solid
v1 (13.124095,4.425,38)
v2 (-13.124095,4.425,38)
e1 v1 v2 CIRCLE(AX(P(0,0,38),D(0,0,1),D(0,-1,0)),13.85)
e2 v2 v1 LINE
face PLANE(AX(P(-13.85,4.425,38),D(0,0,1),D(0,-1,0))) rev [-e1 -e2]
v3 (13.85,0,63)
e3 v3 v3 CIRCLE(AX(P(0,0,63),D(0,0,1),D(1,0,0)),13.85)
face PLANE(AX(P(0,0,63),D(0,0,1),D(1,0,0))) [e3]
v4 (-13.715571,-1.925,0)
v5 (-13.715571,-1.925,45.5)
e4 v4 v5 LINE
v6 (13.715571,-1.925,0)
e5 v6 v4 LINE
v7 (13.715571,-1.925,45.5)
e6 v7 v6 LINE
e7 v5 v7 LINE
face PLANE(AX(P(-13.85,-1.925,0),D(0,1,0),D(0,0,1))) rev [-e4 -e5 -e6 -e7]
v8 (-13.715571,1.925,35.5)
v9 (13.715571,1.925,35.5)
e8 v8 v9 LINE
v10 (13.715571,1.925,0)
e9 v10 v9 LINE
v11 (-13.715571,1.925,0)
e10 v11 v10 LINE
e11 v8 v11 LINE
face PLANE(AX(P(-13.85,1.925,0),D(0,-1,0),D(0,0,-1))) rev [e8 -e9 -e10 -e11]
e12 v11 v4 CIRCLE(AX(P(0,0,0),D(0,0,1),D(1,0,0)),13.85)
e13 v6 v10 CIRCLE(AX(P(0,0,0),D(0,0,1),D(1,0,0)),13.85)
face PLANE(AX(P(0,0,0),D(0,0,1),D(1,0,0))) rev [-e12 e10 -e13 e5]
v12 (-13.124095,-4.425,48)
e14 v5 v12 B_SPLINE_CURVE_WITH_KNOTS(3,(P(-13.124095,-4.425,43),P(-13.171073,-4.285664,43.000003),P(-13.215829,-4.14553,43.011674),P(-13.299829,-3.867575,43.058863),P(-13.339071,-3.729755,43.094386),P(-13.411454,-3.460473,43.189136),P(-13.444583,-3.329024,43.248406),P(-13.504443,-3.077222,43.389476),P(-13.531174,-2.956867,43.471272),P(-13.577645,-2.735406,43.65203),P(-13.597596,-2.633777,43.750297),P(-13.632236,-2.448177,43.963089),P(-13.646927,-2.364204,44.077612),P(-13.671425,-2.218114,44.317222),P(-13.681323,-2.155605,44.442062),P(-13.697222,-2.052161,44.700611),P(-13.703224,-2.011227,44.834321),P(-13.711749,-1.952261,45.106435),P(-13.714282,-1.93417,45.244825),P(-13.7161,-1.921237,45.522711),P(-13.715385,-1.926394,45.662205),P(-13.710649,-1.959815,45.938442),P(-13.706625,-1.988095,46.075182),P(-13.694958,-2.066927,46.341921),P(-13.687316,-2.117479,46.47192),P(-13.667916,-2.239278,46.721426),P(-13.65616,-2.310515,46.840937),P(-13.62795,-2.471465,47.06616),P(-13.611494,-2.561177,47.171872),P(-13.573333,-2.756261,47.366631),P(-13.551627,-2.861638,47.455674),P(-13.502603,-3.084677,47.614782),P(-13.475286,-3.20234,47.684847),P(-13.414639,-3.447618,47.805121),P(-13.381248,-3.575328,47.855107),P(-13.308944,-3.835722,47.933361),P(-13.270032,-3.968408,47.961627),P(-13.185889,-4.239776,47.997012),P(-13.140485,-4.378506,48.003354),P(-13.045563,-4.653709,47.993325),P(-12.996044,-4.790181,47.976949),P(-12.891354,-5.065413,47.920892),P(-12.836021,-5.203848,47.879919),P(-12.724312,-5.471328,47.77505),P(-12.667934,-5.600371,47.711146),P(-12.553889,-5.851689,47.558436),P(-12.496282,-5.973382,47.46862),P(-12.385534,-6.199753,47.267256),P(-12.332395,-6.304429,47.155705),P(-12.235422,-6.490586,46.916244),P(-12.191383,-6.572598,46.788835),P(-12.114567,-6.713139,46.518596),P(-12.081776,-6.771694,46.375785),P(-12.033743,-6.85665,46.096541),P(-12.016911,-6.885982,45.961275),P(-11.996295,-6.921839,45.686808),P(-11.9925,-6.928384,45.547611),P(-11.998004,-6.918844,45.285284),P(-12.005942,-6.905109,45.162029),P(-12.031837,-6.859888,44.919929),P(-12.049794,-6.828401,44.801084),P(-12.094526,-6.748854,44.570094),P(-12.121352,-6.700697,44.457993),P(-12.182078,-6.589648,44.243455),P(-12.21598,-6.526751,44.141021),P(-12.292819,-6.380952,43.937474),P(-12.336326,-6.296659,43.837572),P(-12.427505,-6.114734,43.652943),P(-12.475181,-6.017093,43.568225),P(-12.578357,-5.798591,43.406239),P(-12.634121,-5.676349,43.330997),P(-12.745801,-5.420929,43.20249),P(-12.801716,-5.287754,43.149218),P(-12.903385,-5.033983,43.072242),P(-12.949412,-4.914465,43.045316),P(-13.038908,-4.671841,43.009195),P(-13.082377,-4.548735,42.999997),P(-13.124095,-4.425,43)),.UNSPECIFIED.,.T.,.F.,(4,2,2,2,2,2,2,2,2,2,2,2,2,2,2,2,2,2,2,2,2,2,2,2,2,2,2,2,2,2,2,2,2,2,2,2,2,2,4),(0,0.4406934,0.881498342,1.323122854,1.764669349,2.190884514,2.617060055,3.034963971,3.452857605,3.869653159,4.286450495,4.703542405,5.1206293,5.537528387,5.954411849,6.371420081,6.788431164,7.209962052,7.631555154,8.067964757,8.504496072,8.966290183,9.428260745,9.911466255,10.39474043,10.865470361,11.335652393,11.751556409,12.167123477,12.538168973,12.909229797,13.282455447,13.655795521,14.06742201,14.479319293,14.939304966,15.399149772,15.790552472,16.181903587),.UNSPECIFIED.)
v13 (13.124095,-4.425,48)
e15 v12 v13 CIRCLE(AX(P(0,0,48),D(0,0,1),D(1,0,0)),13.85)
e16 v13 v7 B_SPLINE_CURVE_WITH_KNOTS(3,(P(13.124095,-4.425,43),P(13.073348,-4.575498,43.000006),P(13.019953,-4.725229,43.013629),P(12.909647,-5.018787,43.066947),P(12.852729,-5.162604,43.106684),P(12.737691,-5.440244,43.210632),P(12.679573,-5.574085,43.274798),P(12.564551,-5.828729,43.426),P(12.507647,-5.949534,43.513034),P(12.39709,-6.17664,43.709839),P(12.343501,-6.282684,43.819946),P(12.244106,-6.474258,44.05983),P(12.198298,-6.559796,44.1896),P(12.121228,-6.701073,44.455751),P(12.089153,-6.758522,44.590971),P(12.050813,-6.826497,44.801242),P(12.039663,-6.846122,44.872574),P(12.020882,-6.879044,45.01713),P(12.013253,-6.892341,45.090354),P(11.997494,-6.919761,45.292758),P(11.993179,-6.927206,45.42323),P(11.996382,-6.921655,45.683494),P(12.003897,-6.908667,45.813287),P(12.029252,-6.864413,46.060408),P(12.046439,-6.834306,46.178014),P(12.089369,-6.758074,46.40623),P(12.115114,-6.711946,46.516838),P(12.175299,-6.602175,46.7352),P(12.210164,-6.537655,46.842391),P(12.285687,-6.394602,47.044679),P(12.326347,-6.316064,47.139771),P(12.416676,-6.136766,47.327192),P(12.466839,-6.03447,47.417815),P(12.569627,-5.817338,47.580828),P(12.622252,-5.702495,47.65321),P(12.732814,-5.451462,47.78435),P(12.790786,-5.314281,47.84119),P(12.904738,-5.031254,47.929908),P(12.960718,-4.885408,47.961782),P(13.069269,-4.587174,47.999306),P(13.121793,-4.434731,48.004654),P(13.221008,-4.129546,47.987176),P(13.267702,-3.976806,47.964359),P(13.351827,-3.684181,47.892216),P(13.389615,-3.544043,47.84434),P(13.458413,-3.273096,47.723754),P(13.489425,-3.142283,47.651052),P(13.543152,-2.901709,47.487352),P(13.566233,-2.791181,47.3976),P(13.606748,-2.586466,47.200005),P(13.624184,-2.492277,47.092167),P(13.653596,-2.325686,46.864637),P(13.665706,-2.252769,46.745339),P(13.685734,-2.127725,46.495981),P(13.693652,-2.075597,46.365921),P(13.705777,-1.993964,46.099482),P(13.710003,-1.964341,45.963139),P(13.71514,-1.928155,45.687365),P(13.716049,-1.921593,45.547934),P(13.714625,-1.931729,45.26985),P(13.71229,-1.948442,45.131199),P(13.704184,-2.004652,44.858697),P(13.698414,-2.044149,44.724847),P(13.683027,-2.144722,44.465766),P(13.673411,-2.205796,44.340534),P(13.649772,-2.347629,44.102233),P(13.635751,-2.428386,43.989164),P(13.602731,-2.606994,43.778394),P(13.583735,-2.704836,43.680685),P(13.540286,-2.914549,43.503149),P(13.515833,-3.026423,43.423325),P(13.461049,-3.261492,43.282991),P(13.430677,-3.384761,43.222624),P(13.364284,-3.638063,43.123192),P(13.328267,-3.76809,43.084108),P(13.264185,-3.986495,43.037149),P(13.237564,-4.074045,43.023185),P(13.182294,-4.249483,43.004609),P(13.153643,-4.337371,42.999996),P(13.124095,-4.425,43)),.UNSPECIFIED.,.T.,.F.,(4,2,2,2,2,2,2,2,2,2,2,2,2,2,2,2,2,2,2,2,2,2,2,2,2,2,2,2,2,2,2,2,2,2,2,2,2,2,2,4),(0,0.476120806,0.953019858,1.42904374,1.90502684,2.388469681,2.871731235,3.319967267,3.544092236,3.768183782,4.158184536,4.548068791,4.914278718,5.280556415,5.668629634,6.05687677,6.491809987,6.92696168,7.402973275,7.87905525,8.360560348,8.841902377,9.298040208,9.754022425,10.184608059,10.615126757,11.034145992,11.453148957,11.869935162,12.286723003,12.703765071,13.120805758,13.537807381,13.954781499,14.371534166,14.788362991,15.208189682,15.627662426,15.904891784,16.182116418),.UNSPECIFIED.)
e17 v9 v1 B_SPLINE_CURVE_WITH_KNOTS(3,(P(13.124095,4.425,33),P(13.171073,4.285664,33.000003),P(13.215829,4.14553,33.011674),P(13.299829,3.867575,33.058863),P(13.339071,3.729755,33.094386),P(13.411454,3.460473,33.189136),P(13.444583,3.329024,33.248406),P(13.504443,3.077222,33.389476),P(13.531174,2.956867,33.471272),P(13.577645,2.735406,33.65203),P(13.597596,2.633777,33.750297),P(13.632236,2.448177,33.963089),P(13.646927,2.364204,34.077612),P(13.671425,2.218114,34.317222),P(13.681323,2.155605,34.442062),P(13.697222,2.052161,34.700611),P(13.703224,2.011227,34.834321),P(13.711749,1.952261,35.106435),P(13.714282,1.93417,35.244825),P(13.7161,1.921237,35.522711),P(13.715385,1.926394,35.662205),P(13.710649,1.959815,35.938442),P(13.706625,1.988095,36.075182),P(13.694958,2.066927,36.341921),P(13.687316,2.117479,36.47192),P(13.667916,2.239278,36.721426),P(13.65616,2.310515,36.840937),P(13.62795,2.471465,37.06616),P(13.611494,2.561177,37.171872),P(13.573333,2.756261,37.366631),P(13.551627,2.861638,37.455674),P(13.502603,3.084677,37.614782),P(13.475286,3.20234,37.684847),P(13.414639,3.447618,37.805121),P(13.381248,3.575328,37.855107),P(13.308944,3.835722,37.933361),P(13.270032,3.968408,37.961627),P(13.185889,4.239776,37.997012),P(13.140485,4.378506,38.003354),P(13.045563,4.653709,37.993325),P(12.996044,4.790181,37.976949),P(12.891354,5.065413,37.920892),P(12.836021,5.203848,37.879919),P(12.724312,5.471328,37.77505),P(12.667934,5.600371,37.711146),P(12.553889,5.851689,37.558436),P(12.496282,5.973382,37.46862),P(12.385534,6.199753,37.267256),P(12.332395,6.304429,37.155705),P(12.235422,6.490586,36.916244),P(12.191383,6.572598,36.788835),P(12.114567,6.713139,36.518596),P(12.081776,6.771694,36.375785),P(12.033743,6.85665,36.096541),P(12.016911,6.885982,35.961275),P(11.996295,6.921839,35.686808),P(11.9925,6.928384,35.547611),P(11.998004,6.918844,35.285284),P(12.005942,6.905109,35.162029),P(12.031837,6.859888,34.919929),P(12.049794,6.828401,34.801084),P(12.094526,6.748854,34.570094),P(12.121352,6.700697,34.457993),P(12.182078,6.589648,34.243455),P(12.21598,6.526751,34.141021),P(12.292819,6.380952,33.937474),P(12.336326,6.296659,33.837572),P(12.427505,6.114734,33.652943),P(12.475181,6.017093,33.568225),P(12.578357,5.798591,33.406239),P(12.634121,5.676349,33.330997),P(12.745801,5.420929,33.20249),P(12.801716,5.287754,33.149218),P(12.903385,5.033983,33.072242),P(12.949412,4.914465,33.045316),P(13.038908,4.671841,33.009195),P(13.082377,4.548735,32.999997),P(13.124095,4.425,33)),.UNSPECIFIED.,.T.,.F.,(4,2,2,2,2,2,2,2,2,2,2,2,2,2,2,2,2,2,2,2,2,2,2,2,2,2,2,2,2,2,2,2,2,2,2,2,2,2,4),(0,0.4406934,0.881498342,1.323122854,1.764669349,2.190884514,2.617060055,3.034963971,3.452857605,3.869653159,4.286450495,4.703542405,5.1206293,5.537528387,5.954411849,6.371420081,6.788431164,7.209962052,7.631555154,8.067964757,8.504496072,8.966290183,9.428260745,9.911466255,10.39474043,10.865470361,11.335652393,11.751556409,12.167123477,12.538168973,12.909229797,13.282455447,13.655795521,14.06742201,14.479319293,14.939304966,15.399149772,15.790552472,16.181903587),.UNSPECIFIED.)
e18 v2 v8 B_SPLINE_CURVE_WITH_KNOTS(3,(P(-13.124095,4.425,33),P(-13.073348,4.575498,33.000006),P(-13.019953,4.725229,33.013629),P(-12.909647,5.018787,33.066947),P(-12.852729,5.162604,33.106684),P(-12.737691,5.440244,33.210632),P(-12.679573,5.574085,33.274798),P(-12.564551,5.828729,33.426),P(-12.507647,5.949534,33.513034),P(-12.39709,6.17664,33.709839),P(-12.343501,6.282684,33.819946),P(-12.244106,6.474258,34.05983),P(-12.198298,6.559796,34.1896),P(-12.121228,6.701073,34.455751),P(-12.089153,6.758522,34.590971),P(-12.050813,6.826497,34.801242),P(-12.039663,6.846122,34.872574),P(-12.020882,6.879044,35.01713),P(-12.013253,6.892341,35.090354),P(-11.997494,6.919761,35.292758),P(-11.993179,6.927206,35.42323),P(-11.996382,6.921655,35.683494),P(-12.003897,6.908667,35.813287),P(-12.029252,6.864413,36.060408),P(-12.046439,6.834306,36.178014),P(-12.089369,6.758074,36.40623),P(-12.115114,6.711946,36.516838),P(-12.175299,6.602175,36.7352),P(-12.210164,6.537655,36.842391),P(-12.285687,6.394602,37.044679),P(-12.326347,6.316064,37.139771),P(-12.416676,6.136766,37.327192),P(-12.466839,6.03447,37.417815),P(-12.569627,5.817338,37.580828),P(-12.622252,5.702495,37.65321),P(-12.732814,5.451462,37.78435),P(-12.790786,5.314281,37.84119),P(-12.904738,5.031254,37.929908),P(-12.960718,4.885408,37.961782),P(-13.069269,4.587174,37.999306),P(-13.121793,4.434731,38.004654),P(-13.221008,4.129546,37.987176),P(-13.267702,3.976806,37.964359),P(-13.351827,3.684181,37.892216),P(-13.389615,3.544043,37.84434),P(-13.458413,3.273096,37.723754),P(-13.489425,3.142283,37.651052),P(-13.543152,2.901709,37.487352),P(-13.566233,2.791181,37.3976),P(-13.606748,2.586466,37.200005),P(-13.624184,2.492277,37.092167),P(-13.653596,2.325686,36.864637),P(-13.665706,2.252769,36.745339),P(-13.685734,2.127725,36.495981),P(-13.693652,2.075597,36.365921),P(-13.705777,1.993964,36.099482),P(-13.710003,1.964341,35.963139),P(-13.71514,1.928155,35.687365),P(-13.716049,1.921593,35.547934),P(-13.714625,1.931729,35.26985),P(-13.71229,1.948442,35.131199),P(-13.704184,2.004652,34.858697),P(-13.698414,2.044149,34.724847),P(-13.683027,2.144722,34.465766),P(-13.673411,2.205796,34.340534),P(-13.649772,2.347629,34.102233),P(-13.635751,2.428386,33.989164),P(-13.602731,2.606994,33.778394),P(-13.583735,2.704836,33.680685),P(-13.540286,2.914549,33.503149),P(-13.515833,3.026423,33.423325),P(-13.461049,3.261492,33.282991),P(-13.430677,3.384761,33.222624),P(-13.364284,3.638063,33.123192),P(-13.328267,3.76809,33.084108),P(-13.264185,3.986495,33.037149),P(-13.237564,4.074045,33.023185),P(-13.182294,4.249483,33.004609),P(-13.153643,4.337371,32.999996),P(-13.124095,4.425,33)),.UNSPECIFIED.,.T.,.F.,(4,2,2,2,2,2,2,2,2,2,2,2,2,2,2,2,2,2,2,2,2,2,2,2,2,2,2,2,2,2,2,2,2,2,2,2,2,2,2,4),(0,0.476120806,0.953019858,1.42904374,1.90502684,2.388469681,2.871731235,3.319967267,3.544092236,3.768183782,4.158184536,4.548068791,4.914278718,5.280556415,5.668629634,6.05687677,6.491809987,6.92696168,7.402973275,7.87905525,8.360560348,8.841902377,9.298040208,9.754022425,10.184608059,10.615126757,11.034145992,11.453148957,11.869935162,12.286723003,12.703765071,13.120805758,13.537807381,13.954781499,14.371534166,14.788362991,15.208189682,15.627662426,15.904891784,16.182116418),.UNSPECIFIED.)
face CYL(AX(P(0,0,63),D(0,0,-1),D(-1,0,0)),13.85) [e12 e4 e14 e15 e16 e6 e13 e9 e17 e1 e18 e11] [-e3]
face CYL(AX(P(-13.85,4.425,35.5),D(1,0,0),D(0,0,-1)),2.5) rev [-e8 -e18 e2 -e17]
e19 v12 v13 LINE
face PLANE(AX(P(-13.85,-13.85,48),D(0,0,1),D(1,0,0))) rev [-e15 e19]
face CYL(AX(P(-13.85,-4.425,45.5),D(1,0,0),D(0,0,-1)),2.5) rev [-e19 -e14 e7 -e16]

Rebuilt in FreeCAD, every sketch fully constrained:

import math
import FreeCAD as App
import Part
import Sketcher
from FreeCAD import Vector

doc = App.newDocument("Part")
body = doc.addObject("PartDesign::Body", "Body")

sketch1 = body.newObject("Sketcher::SketchObject", "Sketch")
sketch1.AttachmentSupport = (doc.getObject("XY_Plane"), [""])
sketch1.MapMode = "FlatFace"
sketch1.addGeometry(Part.Circle(Vector(0, 0, 0), Vector(0, 0, 1), 13.85), False)
sketch1.addConstraint([
    Sketcher.Constraint("Coincident", 0, 3, -1, 1),
    Sketcher.Constraint("Diameter", 0, 27.7),
])
pad1 = body.newObject("PartDesign::Pad", "Pad")
pad1.Profile = sketch1
pad1.Length = 63

sketch2 = body.newObject("Sketcher::SketchObject", "Sketch001")
sketch2.AttachmentSupport = (doc.getObject("YZ_Plane"), [""])
sketch2.MapMode = "FlatFace"
sketch2.addGeometry([
    Part.LineSegment(Vector(1.925, 35.5, 0), Vector(1.925, 0, 0)),
    Part.LineSegment(Vector(1.925, 0, 0), Vector(13.85, 0, 0)),
    Part.LineSegment(Vector(13.85, 0, 0), Vector(13.85, 38, 0)),
    Part.LineSegment(Vector(13.85, 38, 0), Vector(4.425, 38, 0)),
    Part.ArcOfCircle(Part.Circle(Vector(4.425, 35.5, 0), Vector(0, 0, 1), 2.5), math.radians(90), math.radians(180)),
    Part.LineSegment(Vector(-1.925, 0, 0), Vector(-1.925, 45.5, 0)),
    Part.ArcOfCircle(Part.Circle(Vector(-4.425, 45.5, 0), Vector(0, 0, 1), 2.5), math.radians(0), math.radians(90)),
    Part.LineSegment(Vector(-4.425, 48, 0), Vector(-13.85, 48, 0)),
    Part.LineSegment(Vector(-13.85, 48, 0), Vector(-13.85, 0, 0)),
    Part.LineSegment(Vector(-13.85, 0, 0), Vector(-1.925, 0, 0)),
], False)
sketch2.addConstraint([
    Sketcher.Constraint("Coincident", 0, 2, 1, 1),
    Sketcher.Constraint("Coincident", 1, 2, 2, 1),
    Sketcher.Constraint("Coincident", 2, 2, 3, 1),
    Sketcher.Constraint("Tangent", 3, 2, 4, 1),
    Sketcher.Constraint("Tangent", 4, 2, 0, 1),
    Sketcher.Constraint("Tangent", 5, 2, 6, 1),
    Sketcher.Constraint("Tangent", 6, 2, 7, 1),
    Sketcher.Constraint("Coincident", 7, 2, 8, 1),
    Sketcher.Constraint("Coincident", 8, 2, 9, 1),
    Sketcher.Constraint("Coincident", 9, 2, 5, 1),
    Sketcher.Constraint("Vertical", 0),
    Sketcher.Constraint("Horizontal", 1),
    Sketcher.Constraint("Vertical", 2),
    Sketcher.Constraint("Horizontal", 3),
    Sketcher.Constraint("Vertical", 5),
    Sketcher.Constraint("Horizontal", 7),
    Sketcher.Constraint("Vertical", 8),
    Sketcher.Constraint("Horizontal", 9),
    Sketcher.Constraint("Equal", 4, 6),
    Sketcher.Constraint("Symmetric", 1, 2, 8, 2, -1, 1),
    Sketcher.Constraint("Symmetric", 0, 2, 9, 2, -2),
    Sketcher.Constraint("Radius", 4, 2.5),
    Sketcher.Constraint("DistanceY", 2, 1, 2, 2, 38.0),
    Sketcher.Constraint("DistanceY", 8, 2, 8, 1, 48.0),
    Sketcher.Constraint("DistanceX", 8, 2, 1, 2, 27.7),
    Sketcher.Constraint("DistanceX", 1, 1, 1, 2, 11.925),
])
pocket1 = body.newObject("PartDesign::Pocket", "Pocket")
pocket1.Profile = sketch2
pocket1.Type = "ThroughAll"
pocket1.Midplane = True

doc.recompute()
